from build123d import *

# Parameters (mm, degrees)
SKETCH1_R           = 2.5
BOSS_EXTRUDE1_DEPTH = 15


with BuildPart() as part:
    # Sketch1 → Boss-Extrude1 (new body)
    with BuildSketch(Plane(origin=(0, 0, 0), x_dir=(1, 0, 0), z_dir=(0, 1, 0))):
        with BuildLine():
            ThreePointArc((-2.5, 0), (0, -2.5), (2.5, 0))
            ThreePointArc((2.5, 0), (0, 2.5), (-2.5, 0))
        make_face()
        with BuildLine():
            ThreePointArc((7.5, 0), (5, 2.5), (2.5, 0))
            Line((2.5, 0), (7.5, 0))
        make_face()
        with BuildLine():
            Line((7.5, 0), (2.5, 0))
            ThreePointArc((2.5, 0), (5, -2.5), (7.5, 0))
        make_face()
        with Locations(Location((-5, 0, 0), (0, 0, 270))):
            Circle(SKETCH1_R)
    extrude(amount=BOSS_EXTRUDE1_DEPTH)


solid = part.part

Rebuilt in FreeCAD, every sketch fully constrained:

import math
import FreeCAD as App
import Part
import Sketcher
from FreeCAD import Vector

doc = App.newDocument("Part")
body = doc.addObject("PartDesign::Body", "Body")
body.AllowCompound = True

sketch1 = body.newObject("Sketcher::SketchObject", "Sketch")
sketch1.AttachmentSupport = (doc.getObject("XZ_Plane"), [""])
sketch1.MapMode = "FlatFace"
sketch1.addGeometry([
    Part.ArcOfCircle(Part.Circle(Vector(0, 0, 0), Vector(0, 0, 1), 2.5), math.radians(180), math.radians(360)),
    Part.ArcOfCircle(Part.Circle(Vector(0, 0, 0), Vector(0, 0, 1), 2.5), math.radians(0), math.radians(180)),
    Part.Circle(Vector(5, 0, 0), Vector(0, 0, 1), 2.5),
    Part.Circle(Vector(-5, 0, 0), Vector(0, 0, 1), 2.5),
], False)
sketch1.addConstraint([
    Sketcher.Constraint("Tangent", 0, 1, 1, 2),
    Sketcher.Constraint("Coincident", 1, 1, 0, 2),
    Sketcher.Constraint("Coincident", 0, 3, -1, 1),
    Sketcher.Constraint("Equal", 1, 2),
    Sketcher.Constraint("Equal", 2, 3),
    Sketcher.Constraint("Symmetric", 2, 3, 3, 3, -1, 1),
    Sketcher.Constraint("PointOnObject", 2, 3, -1),
    Sketcher.Constraint("PointOnObject", 0, 1, -1),
    Sketcher.Constraint("PointOnObject", 1, 1, -1),
    Sketcher.Constraint("Diameter", 2, 5.0),
    Sketcher.Constraint("DistanceX", -1, 1, 2, 3, 5.0),
])
pad1 = body.newObject("PartDesign::Pad", "Pad")
pad1.Profile = sketch1
pad1.Length = 15
pad1.Reversed = True

doc.recompute()
